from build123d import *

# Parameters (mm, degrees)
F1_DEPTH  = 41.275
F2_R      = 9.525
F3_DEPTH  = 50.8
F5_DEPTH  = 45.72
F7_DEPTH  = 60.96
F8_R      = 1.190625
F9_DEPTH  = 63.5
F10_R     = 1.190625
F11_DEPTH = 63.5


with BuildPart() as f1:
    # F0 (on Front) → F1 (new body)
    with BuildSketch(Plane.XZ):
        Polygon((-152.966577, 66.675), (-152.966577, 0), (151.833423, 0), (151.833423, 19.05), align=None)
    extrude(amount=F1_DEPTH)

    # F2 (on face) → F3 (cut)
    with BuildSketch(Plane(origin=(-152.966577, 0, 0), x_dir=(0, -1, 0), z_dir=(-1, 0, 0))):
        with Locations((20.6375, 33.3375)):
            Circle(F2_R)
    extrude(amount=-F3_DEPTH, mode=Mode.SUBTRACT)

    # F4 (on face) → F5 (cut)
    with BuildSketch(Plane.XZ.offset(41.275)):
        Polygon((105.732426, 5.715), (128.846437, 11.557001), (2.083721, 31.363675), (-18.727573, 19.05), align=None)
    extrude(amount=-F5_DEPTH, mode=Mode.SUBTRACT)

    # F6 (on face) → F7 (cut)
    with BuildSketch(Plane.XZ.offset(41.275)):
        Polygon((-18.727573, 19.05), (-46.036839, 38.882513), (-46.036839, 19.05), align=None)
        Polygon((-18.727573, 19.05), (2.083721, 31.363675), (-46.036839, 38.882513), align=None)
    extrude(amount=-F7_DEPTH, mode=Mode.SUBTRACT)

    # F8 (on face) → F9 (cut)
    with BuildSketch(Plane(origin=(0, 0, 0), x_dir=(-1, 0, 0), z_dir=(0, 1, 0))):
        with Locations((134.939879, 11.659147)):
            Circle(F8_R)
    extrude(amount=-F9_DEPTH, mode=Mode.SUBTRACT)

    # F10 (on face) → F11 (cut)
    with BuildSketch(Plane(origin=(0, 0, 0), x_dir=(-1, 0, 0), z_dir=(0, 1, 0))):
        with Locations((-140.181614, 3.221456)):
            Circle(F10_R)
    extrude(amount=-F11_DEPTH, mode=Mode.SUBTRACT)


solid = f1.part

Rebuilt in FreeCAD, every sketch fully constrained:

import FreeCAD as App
import Part
import Sketcher
Q = App.Units.Quantity

doc = App.newDocument("Part")
body = doc.addObject("PartDesign::Body", "Body")

# Sketch on XZ plane
sketch1 = body.newObject("Sketcher::SketchObject", "Sketch")
sketch1.AttachmentSupport = (doc.getObject("XZ_Plane"), [""])
sketch1.MapMode = "FlatFace"
sketch1.addGeometry([
    Part.LineSegment(App.Vector(-153, 67, 0), App.Vector(-153, 0, 0)),
    Part.LineSegment(App.Vector(-153, 0, 0), App.Vector(152, 0, 0)),
    Part.LineSegment(App.Vector(152, 0, 0), App.Vector(152, 19, 0)),
    Part.LineSegment(App.Vector(152, 19, 0), App.Vector(-153, 67, 0)),
], False)
sketch1.addConstraint([
    Sketcher.Constraint("Coincident", 0, 2, 1, 1),
    Sketcher.Constraint("Coincident", 1, 2, 2, 1),
    Sketcher.Constraint("Coincident", 2, 2, 3, 1),
    Sketcher.Constraint("Coincident", 3, 2, 0, 1),
    Sketcher.Constraint("Vertical", 0),
    Sketcher.Constraint("Horizontal", 1),
    Sketcher.Constraint("Vertical", 2),
    Sketcher.Constraint("PointOnObject", 0, 2, -1),
    Sketcher.Constraint("DistanceX", 1, 1, 1, 2, Q("12 in")),
    Sketcher.Constraint("DistanceY", 2, 1, 2, 2, Q("0.75 in")),
    Sketcher.Constraint("DistanceY", 0, 2, 0, 1, Q("2.625 in")),
    Sketcher.Constraint("DistanceX", 0, 2, -1, 1, 152.966577),
])
pad1 = body.newObject("PartDesign::Pad", "Pad")
pad1.Profile = sketch1
pad1.Length = Q("1.625 in")

# Sketch on YZ plane
sketch2 = body.newObject("Sketcher::SketchObject", "Sketch001")
sketch2.AttachmentSupport = (doc.getObject("YZ_Plane"), [""])
sketch2.MapMode = "FlatFace"
sketch2.AttachmentOffset = App.Placement(App.Vector(0, 0, -152.966577), App.Rotation())
sketch2.addGeometry(Part.Circle(App.Vector(-21, 33, 0), App.Vector(0, 0, 1), 10), False)
sketch2.addConstraint([
    Sketcher.Constraint("Diameter", 0, Q("0.75 in")),
    Sketcher.Constraint("DistanceX", 0, 3, -1, 1, Q("0.8125 in")),
    Sketcher.Constraint("DistanceY", -1, 1, 0, 3, Q("1.3125 in")),
])
pocket1 = body.newObject("PartDesign::Pocket", "Pocket")
pocket1.Profile = sketch2
pocket1.Length = Q("2 in")
pocket1.Reversed = True

# Sketch on XZ plane
sketch3 = body.newObject("Sketcher::SketchObject", "Sketch002")
sketch3.AttachmentSupport = (doc.getObject("XZ_Plane"), [""])
sketch3.MapMode = "FlatFace"
sketch3.AttachmentOffset = App.Placement(App.Vector(0, 0, 1.625 * 25.4), App.Rotation())
sketch3.addGeometry([
    Part.LineSegment(App.Vector(106, 6, 0), App.Vector(129, 12, 0)),
    Part.LineSegment(App.Vector(129, 12, 0), App.Vector(2, 31, 0)),
    Part.LineSegment(App.Vector(2, 31, 0), App.Vector(-19, 19, 0)),
    Part.LineSegment(App.Vector(-19, 19, 0), App.Vector(106, 6, 0)),
], False)
sketch3.addConstraint([
    Sketcher.Constraint("Coincident", 0, 2, 1, 1),
    Sketcher.Constraint("Coincident", 1, 2, 2, 1),
    Sketcher.Constraint("Coincident", 2, 2, 3, 1),
    Sketcher.Constraint("Coincident", 3, 2, 0, 1),
    Sketcher.Constraint("DistanceX", 2, 2, 3, 2, Q("4.9 in")),
    Sketcher.Constraint("DistanceY", -1, 1, 2, 2, Q("0.75 in")),
    Sketcher.Constraint("DistanceY", 3, 2, 0, 2, Q("0.23 in")),
    Sketcher.Constraint("DistanceY", -1, 1, 0, 2, Q("0.455 in")),
    Sketcher.Constraint("Distance", 1, 128.300781),
    Sketcher.Constraint("DistanceX", -1, 1, 1, 2, 2.083721),
    Sketcher.Constraint("DistanceX", 2, 2, 0, 2, 147.57401),
    Sketcher.Constraint("Distance", 2, 24.181326),
])
pocket2 = body.newObject("PartDesign::Pocket", "Pocket001")
pocket2.Profile = sketch3
pocket2.Length = Q("1.8 in")

# Sketch on XZ plane
sketch4 = body.newObject("Sketcher::SketchObject", "Sketch003")
sketch4.AttachmentSupport = (doc.getObject("XZ_Plane"), [""])
sketch4.MapMode = "FlatFace"
sketch4.AttachmentOffset = App.Placement(App.Vector(0, 0, 1.625 * 25.4), App.Rotation())
sketch4.addGeometry([
    Part.LineSegment(App.Vector(-46, 39, 0), App.Vector(-46, 19, 0)),
    Part.LineSegment(App.Vector(-46, 19, 0), App.Vector(-19, 19, 0)),
    Part.LineSegment(App.Vector(-19, 19, 0), App.Vector(2, 31, 0)),
    Part.LineSegment(App.Vector(2, 31, 0), App.Vector(-46, 39, 0)),
], False)
sketch4.addConstraint([
    Sketcher.Constraint("Coincident", 0, 2, 1, 1),
    Sketcher.Constraint("Coincident", 1, 2, 2, 1),
    Sketcher.Constraint("Coincident", 2, 2, 3, 1),
    Sketcher.Constraint("Coincident", 3, 2, 0, 1),
    Sketcher.Constraint("Vertical", 0),
    Sketcher.Constraint("Horizontal", 1),
    Sketcher.Constraint("DistanceY", -1, 1, 0, 2, Q("0.75 in")),
    Sketcher.Constraint("DistanceX", 1, 1, 1, 2, 27.309266),
    Sketcher.Constraint("DistanceY", 0, 2, 0, 1, 19.832513),
    Sketcher.Constraint("DistanceX", 0, 2, -1, 1, 46.036839),
    Sketcher.Constraint("DistanceX", -1, 1, 2, 2, 2.083721),
    Sketcher.Constraint("DistanceY", 2, 2, 3, 2, 7.518838),
])
pocket3 = body.newObject("PartDesign::Pocket", "Pocket002")
pocket3.Profile = sketch4
pocket3.Length = Q("2.4 in")

# Sketch on XZ plane
sketch5 = body.newObject("Sketcher::SketchObject", "Sketch004")
sketch5.AttachmentSupport = (doc.getObject("XZ_Plane"), [""])
sketch5.MapMode = "FlatFace"
sketch5.addGeometry(Part.Circle(App.Vector(-134.9, 11.7, 0), App.Vector(0, 0, 1), 1.2), False)
sketch5.addConstraint([
    Sketcher.Constraint("Diameter", 0, Q("0.09375 in")),
    Sketcher.Constraint("DistanceX", 0, 3, -1, 1, 134.939879),
    Sketcher.Constraint("DistanceY", -1, 1, 0, 3, 11.659147),
])
pocket4 = body.newObject("PartDesign::Pocket", "Pocket003")
pocket4.Profile = sketch5
pocket4.Length = Q("2.5 in")
pocket4.Reversed = True

# Sketch on XZ plane
sketch6 = body.newObject("Sketcher::SketchObject", "Sketch005")
sketch6.AttachmentSupport = (doc.getObject("XZ_Plane"), [""])
sketch6.MapMode = "FlatFace"
sketch6.addGeometry(Part.Circle(App.Vector(140.2, 3.2, 0), App.Vector(0, 0, 1), 1.2), False)
sketch6.addConstraint([
    Sketcher.Constraint("Diameter", 0, Q("0.09375 in")),
    Sketcher.Constraint("DistanceX", -1, 1, 0, 3, 140.181614),
    Sketcher.Constraint("DistanceY", -1, 1, 0, 3, 3.221456),
])
pocket5 = body.newObject("PartDesign::Pocket", "Pocket004")
pocket5.Profile = sketch6
pocket5.Length = Q("2.5 in")
pocket5.Reversed = True

doc.recompute()
